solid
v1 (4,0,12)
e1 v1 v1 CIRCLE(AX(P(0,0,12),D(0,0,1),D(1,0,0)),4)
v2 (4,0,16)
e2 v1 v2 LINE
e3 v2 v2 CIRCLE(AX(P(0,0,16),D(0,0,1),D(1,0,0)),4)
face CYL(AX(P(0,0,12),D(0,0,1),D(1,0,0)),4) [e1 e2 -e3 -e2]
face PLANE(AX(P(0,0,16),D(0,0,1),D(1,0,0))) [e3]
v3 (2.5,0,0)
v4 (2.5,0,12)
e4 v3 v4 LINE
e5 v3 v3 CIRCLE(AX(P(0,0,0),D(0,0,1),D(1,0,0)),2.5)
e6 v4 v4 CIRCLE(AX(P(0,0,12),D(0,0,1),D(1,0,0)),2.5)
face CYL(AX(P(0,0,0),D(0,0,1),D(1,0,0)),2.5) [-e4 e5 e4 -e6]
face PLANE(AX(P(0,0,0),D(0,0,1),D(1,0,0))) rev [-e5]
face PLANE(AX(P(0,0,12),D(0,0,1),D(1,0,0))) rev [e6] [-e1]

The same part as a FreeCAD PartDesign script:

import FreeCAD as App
import Part
import Sketcher

doc = App.newDocument("Part")
body = doc.addObject("PartDesign::Body", "Body")

# Sketch on XZ plane
sketch1 = body.newObject("Sketcher::SketchObject", "Sketch")
sketch1.AttachmentSupport = (doc.getObject("XZ_Plane"), [""])
sketch1.MapMode = "FlatFace"
sketch1.addGeometry(Part.LineSegment(App.Vector(0, 0, 0), App.Vector(2.5, 0, 0)), False)
sketch1.addGeometry(Part.LineSegment(App.Vector(2.5, 0, 0), App.Vector(2.5, 12, 0)), False)
sketch1.addGeometry(Part.LineSegment(App.Vector(2.5, 12, 0), App.Vector(4, 12, 0)), False)
sketch1.addGeometry(Part.LineSegment(App.Vector(4, 12, 0), App.Vector(4, 16, 0)), False)
sketch1.addGeometry(Part.LineSegment(App.Vector(4, 16, 0), App.Vector(0, 16, 0)), False)
sketch1.addGeometry(Part.LineSegment(App.Vector(0, 16, 0), App.Vector(0, 0, 0)), False)
sketch1.addConstraint(Sketcher.Constraint("Coincident", 0, 2, 1, 1))
sketch1.addConstraint(Sketcher.Constraint("Coincident", 1, 2, 2, 1))
sketch1.addConstraint(Sketcher.Constraint("Coincident", 2, 2, 3, 1))
sketch1.addConstraint(Sketcher.Constraint("Coincident", 3, 2, 4, 1))
sketch1.addConstraint(Sketcher.Constraint("Coincident", 4, 2, 5, 1))
sketch1.addConstraint(Sketcher.Constraint("Coincident", 5, 2, 0, 1))
sketch1.addConstraint(Sketcher.Constraint("Horizontal", 0))
sketch1.addConstraint(Sketcher.Constraint("Vertical", 1))
sketch1.addConstraint(Sketcher.Constraint("Horizontal", 2))
sketch1.addConstraint(Sketcher.Constraint("Vertical", 3))
sketch1.addConstraint(Sketcher.Constraint("Horizontal", 4))
sketch1.addConstraint(Sketcher.Constraint("Vertical", 5))
sketch1.addConstraint(Sketcher.Constraint("Coincident", 5, 2, -1, 1))
sketch1.addConstraint(Sketcher.Constraint("Equal", 4, 3))
sketch1.addConstraint(Sketcher.Constraint("DistanceX", 4, 2, 4, 1, 4.0))
sketch1.addConstraint(Sketcher.Constraint("DistanceY", 1, 1, 1, 2, 12.0))
sketch1.addConstraint(Sketcher.Constraint("DistanceX", 0, 1, 0, 2, 2.5))
revolution = body.newObject("PartDesign::Revolution", "Revolution")
revolution.Profile = sketch1
revolution.ReferenceAxis = (sketch1, ["V_Axis"])
revolution.Angle = 360

doc.recompute()
